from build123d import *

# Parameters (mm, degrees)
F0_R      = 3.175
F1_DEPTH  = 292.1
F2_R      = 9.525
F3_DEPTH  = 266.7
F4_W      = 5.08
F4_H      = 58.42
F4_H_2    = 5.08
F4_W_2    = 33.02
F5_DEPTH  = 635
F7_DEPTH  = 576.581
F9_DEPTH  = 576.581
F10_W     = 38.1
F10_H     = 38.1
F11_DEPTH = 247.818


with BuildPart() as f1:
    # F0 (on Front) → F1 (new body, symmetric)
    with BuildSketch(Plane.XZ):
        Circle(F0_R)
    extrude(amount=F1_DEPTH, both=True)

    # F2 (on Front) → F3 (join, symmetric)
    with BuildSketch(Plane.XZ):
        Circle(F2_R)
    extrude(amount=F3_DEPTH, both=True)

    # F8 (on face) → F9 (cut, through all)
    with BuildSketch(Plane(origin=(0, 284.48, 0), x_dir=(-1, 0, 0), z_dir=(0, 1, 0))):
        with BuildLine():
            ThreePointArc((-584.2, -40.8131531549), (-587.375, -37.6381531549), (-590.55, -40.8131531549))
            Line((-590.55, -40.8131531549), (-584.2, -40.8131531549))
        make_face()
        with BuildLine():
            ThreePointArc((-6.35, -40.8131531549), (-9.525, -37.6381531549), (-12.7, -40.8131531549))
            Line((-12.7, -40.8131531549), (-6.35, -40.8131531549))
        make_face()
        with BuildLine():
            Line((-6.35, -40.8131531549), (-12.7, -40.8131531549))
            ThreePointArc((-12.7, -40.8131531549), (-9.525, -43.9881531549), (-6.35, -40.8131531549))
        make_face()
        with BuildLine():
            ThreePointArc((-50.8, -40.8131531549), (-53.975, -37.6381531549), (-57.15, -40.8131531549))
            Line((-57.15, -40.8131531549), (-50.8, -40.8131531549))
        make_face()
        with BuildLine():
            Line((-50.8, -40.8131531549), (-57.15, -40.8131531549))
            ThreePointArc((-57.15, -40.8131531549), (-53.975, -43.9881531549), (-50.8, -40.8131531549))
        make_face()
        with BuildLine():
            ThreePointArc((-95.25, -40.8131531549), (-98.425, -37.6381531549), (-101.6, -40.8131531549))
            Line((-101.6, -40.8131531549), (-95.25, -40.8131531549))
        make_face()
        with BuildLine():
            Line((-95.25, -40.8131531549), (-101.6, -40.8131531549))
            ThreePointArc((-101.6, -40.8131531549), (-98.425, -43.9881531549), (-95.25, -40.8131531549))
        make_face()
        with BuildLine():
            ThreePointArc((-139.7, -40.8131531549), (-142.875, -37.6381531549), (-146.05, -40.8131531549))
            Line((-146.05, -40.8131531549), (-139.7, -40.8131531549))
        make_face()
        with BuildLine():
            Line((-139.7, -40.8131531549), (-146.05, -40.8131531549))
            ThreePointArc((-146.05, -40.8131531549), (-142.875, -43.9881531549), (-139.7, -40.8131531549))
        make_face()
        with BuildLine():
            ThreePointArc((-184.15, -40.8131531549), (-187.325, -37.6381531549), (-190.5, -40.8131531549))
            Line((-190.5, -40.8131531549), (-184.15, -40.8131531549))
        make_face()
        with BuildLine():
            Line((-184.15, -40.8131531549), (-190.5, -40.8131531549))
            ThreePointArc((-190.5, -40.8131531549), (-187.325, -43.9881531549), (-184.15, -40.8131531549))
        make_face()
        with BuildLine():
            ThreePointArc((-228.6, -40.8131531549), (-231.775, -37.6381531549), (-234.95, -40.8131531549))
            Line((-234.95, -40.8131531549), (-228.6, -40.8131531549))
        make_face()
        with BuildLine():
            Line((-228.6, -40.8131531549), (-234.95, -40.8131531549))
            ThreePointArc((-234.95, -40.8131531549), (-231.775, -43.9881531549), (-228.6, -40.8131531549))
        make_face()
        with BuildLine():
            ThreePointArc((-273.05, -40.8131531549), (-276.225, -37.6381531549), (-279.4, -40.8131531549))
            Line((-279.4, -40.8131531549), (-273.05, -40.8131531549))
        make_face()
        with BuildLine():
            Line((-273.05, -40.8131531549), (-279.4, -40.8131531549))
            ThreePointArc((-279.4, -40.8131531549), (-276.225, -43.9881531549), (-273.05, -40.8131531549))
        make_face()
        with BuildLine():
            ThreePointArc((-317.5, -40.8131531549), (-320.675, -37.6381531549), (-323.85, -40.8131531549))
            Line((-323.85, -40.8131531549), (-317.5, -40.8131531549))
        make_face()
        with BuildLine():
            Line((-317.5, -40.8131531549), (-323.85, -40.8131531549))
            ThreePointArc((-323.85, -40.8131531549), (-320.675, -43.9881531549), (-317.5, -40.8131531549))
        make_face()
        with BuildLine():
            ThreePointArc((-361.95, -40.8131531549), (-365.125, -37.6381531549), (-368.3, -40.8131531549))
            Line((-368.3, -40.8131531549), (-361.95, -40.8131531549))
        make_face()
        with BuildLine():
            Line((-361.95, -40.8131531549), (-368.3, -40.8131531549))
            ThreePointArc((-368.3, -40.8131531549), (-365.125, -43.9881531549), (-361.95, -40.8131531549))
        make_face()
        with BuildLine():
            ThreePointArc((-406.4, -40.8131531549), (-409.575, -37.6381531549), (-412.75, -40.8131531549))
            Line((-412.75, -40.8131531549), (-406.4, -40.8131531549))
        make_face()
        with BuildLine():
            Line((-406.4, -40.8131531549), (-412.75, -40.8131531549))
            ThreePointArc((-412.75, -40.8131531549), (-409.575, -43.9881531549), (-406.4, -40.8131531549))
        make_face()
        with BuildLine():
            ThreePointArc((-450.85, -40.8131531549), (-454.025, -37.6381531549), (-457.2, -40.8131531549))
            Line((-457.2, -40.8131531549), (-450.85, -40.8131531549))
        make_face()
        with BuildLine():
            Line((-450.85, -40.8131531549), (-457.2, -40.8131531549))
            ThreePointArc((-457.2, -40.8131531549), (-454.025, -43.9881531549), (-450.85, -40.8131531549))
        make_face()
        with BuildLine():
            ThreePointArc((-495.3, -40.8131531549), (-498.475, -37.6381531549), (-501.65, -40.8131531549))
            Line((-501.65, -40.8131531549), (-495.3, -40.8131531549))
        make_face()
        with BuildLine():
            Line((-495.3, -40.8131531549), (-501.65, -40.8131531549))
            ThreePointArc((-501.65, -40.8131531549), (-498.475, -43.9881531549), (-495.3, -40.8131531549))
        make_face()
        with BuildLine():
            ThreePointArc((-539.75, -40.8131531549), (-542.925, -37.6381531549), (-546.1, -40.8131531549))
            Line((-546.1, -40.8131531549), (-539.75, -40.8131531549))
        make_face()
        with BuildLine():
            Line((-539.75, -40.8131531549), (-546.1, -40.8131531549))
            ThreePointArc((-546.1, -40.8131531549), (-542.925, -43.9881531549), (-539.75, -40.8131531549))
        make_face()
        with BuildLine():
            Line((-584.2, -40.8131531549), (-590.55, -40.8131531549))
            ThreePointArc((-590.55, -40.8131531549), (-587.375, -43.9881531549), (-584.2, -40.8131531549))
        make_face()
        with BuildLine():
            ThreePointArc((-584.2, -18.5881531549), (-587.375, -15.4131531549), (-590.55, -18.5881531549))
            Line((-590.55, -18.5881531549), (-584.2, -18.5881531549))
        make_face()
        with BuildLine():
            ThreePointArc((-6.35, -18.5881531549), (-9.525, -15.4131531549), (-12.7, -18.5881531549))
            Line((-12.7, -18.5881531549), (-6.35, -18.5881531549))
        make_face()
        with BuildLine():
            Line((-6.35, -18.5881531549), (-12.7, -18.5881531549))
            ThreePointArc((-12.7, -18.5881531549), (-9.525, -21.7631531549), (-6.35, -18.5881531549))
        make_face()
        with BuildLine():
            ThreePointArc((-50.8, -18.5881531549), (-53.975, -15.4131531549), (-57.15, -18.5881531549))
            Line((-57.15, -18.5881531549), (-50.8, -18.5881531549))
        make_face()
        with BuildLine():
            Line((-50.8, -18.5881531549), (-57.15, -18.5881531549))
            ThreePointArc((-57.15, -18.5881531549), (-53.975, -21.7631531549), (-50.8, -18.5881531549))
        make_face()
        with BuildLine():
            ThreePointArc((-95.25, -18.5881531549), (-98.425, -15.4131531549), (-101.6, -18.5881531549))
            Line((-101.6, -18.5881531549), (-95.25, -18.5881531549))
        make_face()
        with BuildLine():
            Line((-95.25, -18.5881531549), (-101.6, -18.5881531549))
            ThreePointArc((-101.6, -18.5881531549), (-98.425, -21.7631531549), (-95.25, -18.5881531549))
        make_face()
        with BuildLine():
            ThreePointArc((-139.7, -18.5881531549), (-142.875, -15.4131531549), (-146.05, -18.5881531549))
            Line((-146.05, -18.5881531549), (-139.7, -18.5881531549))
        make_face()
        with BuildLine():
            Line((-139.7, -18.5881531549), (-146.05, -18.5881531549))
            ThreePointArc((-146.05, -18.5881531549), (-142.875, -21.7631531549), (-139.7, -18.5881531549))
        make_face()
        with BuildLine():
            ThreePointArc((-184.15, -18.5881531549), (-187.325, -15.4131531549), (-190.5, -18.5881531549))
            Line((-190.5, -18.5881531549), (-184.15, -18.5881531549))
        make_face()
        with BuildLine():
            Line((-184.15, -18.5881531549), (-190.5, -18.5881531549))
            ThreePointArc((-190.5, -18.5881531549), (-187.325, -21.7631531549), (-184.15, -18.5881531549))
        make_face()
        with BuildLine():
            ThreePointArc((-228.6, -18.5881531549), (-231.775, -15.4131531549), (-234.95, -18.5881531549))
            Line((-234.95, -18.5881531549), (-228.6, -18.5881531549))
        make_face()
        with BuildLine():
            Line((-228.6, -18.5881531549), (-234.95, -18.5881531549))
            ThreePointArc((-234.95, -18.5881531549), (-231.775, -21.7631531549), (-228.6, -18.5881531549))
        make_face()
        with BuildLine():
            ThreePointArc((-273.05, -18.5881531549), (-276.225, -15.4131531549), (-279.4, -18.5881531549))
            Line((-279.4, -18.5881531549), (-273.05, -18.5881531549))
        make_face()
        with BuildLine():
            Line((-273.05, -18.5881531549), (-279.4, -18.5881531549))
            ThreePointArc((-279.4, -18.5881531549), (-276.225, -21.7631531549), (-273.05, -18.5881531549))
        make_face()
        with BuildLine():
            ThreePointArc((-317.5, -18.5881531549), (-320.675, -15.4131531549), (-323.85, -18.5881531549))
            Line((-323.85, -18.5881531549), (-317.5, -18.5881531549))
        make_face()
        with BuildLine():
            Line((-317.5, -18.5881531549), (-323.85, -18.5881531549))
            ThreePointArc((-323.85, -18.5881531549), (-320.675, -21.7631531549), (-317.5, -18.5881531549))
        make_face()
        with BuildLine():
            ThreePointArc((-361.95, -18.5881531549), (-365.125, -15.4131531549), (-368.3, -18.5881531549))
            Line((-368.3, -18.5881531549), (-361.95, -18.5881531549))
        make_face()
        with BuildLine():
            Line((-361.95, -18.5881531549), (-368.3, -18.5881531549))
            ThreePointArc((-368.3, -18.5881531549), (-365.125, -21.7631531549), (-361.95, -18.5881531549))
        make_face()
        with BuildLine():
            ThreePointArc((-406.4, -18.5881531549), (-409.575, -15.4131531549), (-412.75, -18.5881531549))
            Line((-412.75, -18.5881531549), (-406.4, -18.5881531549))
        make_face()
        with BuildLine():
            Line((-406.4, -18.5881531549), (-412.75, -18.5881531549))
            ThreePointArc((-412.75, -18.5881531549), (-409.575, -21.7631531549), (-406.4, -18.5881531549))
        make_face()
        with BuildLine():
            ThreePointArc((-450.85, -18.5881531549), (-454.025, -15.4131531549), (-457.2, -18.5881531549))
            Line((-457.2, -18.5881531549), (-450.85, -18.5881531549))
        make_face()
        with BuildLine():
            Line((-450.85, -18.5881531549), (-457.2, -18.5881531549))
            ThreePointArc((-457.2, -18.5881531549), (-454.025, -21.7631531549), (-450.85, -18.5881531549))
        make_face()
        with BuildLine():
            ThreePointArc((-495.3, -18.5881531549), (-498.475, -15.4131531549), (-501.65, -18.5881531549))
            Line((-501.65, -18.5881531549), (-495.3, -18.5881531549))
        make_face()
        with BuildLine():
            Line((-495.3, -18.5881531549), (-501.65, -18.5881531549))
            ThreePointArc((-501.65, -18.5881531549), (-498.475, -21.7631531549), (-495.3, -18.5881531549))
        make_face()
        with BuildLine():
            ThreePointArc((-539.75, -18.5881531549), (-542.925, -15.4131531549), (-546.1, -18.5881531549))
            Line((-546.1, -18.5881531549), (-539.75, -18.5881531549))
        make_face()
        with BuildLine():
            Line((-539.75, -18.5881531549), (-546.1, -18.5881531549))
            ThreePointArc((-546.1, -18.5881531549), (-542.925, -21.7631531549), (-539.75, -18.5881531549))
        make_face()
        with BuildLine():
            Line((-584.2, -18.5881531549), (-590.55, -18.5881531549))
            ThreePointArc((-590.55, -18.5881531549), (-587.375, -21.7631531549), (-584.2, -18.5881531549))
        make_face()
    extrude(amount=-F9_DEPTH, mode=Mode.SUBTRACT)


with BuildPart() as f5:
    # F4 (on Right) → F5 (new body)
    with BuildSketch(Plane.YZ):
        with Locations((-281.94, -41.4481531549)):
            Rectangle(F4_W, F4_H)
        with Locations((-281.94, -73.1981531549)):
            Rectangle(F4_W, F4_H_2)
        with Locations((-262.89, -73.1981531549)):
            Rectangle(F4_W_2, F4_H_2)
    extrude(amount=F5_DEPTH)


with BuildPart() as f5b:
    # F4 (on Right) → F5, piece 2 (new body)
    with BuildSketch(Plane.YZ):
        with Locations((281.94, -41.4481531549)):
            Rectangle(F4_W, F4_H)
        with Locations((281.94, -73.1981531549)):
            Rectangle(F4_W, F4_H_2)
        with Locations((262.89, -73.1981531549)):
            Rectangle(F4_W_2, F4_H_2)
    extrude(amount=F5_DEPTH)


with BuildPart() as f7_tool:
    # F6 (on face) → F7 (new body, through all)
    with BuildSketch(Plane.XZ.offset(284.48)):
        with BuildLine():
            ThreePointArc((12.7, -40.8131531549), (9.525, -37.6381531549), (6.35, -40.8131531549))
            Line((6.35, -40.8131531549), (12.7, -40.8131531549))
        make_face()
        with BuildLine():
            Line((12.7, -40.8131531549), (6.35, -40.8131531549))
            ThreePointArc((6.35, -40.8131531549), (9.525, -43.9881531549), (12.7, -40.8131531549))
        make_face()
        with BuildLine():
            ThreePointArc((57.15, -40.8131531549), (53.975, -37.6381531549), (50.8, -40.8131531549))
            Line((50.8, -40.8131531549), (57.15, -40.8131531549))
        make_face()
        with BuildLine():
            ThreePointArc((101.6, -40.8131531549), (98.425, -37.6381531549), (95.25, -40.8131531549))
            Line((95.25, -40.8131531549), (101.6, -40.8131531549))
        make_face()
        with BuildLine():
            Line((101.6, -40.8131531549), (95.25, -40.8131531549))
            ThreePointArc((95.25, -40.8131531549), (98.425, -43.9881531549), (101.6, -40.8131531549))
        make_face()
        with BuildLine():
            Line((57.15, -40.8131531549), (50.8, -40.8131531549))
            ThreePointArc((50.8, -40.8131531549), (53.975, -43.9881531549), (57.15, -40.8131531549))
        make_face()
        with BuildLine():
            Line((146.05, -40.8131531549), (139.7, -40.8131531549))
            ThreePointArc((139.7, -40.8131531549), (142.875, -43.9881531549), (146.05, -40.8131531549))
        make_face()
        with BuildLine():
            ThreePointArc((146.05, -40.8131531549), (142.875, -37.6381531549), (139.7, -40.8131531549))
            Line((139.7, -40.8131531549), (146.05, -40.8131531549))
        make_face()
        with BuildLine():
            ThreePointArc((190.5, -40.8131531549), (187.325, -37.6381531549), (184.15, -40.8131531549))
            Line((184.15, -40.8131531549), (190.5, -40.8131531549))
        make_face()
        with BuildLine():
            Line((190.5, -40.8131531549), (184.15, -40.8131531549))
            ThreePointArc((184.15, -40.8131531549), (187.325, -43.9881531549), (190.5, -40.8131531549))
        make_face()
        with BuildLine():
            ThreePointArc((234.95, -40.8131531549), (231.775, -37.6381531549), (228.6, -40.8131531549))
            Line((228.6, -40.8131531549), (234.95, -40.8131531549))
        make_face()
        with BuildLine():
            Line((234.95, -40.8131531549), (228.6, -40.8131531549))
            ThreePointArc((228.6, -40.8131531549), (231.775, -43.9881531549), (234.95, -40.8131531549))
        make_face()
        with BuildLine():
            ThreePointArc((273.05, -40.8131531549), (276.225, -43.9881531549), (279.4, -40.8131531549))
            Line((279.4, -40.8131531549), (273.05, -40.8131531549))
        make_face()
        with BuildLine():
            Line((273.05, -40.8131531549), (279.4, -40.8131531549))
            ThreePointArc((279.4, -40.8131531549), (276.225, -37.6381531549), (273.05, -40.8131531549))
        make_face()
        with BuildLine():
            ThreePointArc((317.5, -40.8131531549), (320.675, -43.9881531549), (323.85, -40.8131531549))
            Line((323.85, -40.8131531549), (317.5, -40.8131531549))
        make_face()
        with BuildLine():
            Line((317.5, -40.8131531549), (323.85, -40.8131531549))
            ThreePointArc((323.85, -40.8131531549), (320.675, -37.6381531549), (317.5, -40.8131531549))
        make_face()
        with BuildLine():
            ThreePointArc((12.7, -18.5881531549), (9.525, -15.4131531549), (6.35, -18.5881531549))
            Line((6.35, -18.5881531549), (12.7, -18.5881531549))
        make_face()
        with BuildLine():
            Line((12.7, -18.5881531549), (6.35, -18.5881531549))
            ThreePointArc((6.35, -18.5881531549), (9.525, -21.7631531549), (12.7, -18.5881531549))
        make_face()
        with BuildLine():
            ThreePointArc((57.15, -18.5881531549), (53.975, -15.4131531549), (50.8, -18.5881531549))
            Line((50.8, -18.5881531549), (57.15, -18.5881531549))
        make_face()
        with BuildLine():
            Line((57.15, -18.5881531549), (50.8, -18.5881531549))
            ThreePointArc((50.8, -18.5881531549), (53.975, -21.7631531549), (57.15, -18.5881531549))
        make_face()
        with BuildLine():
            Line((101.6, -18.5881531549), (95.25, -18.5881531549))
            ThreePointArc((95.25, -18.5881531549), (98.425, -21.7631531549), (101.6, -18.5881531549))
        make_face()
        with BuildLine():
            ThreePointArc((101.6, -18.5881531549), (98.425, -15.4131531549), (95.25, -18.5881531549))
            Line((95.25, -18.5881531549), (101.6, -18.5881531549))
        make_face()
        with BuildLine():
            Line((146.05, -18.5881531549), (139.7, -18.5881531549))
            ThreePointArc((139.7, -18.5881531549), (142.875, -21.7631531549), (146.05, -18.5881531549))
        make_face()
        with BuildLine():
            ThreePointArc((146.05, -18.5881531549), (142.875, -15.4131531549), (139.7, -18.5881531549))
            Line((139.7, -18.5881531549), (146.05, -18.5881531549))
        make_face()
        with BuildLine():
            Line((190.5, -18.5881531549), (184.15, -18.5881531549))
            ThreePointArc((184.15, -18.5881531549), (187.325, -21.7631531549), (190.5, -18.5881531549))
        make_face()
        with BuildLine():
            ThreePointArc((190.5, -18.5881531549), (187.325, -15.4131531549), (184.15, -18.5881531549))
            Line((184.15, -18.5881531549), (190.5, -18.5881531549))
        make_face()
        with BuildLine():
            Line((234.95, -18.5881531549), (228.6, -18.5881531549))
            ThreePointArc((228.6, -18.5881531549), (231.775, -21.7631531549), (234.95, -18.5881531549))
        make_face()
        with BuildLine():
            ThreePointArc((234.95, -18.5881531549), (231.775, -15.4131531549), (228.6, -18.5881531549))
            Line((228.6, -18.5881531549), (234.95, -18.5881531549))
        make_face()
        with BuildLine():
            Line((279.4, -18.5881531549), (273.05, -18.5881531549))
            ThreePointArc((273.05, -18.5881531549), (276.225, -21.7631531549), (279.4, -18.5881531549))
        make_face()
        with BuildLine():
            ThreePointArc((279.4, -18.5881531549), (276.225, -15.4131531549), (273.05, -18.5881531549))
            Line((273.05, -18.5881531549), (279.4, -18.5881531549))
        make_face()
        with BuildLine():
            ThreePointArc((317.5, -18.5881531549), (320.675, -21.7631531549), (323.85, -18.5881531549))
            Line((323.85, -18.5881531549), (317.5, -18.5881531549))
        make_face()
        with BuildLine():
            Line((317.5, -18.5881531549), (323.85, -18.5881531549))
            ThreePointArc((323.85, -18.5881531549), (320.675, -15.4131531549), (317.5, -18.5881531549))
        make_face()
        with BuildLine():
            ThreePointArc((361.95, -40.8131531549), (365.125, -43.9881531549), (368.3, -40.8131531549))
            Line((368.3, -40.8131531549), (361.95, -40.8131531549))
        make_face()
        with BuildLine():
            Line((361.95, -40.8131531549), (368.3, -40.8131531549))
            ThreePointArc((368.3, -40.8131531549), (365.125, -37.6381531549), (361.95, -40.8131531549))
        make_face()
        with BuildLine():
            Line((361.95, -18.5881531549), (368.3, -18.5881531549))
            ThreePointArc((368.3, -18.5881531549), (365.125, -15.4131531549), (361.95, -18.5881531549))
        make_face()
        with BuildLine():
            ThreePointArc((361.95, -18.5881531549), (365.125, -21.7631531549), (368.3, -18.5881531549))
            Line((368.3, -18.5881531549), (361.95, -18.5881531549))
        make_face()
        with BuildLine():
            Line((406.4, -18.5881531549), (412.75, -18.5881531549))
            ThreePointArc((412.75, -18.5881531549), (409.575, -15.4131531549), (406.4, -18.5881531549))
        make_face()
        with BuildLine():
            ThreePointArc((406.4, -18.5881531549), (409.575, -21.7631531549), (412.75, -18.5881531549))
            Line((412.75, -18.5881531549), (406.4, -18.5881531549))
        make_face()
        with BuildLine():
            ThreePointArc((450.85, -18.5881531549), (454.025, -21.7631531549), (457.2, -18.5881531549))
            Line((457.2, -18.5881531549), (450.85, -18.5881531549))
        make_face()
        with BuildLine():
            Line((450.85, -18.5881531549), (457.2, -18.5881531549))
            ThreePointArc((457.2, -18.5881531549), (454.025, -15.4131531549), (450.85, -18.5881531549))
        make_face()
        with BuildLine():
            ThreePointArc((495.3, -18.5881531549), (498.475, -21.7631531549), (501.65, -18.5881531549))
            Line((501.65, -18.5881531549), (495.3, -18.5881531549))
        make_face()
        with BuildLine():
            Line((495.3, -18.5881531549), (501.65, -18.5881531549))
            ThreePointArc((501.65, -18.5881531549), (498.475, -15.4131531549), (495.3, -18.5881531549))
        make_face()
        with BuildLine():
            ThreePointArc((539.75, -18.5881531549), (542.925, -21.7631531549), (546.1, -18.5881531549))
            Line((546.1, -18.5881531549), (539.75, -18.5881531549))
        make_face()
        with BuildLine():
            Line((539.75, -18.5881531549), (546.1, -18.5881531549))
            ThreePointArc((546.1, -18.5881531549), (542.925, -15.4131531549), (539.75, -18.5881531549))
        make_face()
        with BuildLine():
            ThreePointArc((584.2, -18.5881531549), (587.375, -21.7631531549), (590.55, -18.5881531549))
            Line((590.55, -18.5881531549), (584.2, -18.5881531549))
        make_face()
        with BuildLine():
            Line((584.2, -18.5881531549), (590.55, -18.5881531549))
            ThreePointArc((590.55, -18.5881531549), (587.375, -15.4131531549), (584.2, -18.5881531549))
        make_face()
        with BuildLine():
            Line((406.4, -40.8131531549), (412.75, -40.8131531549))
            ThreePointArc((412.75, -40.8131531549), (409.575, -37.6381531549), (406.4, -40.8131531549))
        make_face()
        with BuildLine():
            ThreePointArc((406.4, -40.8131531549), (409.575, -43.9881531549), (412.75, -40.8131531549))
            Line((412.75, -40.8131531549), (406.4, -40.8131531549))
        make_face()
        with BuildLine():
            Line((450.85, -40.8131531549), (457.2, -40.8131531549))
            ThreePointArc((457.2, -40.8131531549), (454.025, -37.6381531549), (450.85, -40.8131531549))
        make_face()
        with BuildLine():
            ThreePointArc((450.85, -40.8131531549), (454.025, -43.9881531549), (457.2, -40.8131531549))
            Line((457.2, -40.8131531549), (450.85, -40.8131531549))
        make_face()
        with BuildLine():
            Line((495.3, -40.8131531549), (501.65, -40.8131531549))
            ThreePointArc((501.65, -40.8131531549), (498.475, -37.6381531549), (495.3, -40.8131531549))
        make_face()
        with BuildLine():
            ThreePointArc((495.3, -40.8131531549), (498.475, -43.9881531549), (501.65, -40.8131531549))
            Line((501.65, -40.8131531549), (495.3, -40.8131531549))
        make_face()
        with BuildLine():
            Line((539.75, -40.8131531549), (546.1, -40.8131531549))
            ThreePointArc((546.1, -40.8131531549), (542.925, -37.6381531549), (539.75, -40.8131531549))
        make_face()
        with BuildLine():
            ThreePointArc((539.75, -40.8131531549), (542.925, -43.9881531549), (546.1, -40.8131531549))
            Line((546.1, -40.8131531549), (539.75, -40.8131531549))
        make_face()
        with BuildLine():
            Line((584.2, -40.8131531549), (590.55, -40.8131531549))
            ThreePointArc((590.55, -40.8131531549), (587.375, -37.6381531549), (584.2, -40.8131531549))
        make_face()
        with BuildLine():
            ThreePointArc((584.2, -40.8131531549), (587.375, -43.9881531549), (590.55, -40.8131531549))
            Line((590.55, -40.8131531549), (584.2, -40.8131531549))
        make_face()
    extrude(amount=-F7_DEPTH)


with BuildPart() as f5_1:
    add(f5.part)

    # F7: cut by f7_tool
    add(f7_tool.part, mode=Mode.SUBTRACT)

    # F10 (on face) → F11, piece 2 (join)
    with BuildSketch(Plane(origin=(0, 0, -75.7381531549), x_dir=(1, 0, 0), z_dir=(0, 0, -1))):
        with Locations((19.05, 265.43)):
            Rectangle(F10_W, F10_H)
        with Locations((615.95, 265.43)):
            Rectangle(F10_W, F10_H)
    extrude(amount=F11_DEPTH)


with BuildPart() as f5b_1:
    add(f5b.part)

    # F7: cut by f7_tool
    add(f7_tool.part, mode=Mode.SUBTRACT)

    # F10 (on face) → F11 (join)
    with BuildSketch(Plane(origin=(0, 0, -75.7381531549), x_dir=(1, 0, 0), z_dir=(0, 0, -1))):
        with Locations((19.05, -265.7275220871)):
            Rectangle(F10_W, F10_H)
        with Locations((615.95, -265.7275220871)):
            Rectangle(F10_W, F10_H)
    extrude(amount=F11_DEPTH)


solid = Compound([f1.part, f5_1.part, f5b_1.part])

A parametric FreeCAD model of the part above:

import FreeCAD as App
import Part
import Sketcher
Q = App.Units.Quantity

doc = App.newDocument("Part")
params = doc.addObject("Spreadsheet::Sheet", "Params")
for row, (alias, value) in enumerate([
    ("sketch1_diameter", "0.25 in"),
    ("pad1_length", "23 in"),
    ("sketch2_diameter", "0.75 in"),
    ("pad2_length", "21 in"),
    ("sketch3_diameter", "0.25 in"),
    ("sketch4_width", "1.5 in"),
    ("sketch4_width2", "1.3 in"),
    ("sketch4_height", "2.5 in"),
    ("pad3_length", "25 in"),
    ("sketch5_width", "1.3 in"),
    ("sketch5_width2", "1.5 in"),
    ("sketch5_height", "2.3 in"),
    ("pad4_length", "25 in"),
    ("sketch6_diameter", "0.25 in"),
    ("pad5_length", "576.581 mm"),
    ("sketch7_width", "1.5 in"),
    ("pad6_length", "247.818 mm"),
    ("sketch8_width", "1.5 in"),
    ("pad7_length", "247.818 mm"),
], start=1):
    params.set(f"A{row}", alias)
    params.set(f"B{row}", "=" + value)
    params.setAlias(f"B{row}", alias)

body = doc.addObject("PartDesign::Body", "Body")

# Sketch on XZ plane
sketch1 = body.newObject("Sketcher::SketchObject", "Sketch")
sketch1.AttachmentSupport = (doc.getObject("XZ_Plane"), [""])
sketch1.MapMode = "FlatFace"
sketch1.addGeometry(Part.Circle(App.Vector(0, 0, 0), App.Vector(0, 0, 1), 3.175), False)
sketch1.addConstraint(Sketcher.Constraint("Coincident", 0, 3, -1, 1))
sketch1.addConstraint(Sketcher.Constraint("Diameter", 0, Q("0.25 in")))
sketch1.setExpression("Constraints[1]", "Params.sketch1_diameter")
pad1 = body.newObject("PartDesign::Pad", "Pad")
pad1.Profile = sketch1
pad1.setExpression("Length", "Params.pad1_length")
pad1.Midplane = True

# Sketch on XZ plane
sketch2 = body.newObject("Sketcher::SketchObject", "Sketch001")
sketch2.AttachmentSupport = (doc.getObject("XZ_Plane"), [""])
sketch2.MapMode = "FlatFace"
sketch2.addGeometry(Part.Circle(App.Vector(0, 0, 0), App.Vector(0, 0, 1), 9.525), False)
sketch2.addConstraint(Sketcher.Constraint("Coincident", 0, 3, -1, 1))
sketch2.addConstraint(Sketcher.Constraint("Diameter", 0, Q("0.75 in")))
sketch2.setExpression("Constraints[1]", "Params.sketch2_diameter")
pad2 = body.newObject("PartDesign::Pad", "Pad001")
pad2.Profile = sketch2
pad2.setExpression("Length", "Params.pad2_length")
pad2.Midplane = True

# Sketch on XZ plane
sketch3 = body.newObject("Sketcher::SketchObject", "Sketch002")
sketch3.AttachmentSupport = (doc.getObject("XZ_Plane"), [""])
sketch3.MapMode = "FlatFace"
sketch3.AttachmentOffset = App.Placement(App.Vector(0, 0, -11.2 * 25.4), App.Rotation())
sketch3.addGeometry(Part.Circle(App.Vector(587.375, -40.813153, 0), App.Vector(0, 0, 1), 3.175), False)
sketch3.addGeometry(Part.Circle(App.Vector(9.525, -40.813153, 0), App.Vector(0, 0, 1), 3.175), False)
sketch3.addGeometry(Part.Circle(App.Vector(53.975, -40.813153, 0), App.Vector(0, 0, 1), 3.175), False)
sketch3.addGeometry(Part.Circle(App.Vector(98.425, -40.813153, 0), App.Vector(0, 0, 1), 3.175), False)
sketch3.addGeometry(Part.Circle(App.Vector(142.875, -40.813153, 0), App.Vector(0, 0, 1), 3.175), False)
sketch3.addGeometry(Part.Circle(App.Vector(187.325, -40.813153, 0), App.Vector(0, 0, 1), 3.175), False)
sketch3.addGeometry(Part.Circle(App.Vector(231.775, -40.813153, 0), App.Vector(0, 0, 1), 3.175), False)
sketch3.addGeometry(Part.Circle(App.Vector(276.225, -40.813153, 0), App.Vector(0, 0, 1), 3.175), False)
sketch3.addGeometry(Part.Circle(App.Vector(320.675, -40.813153, 0), App.Vector(0, 0, 1), 3.175), False)
sketch3.addGeometry(Part.Circle(App.Vector(365.125, -40.813153, 0), App.Vector(0, 0, 1), 3.175), False)
sketch3.addGeometry(Part.Circle(App.Vector(409.575, -40.813153, 0), App.Vector(0, 0, 1), 3.175), False)
sketch3.addGeometry(Part.Circle(App.Vector(454.025, -40.813153, 0), App.Vector(0, 0, 1), 3.175), False)
sketch3.addGeometry(Part.Circle(App.Vector(498.475, -40.813153, 0), App.Vector(0, 0, 1), 3.175), False)
sketch3.addGeometry(Part.Circle(App.Vector(542.925, -40.813153, 0), App.Vector(0, 0, 1), 3.175), False)
sketch3.addGeometry(Part.Circle(App.Vector(587.375, -18.588153, 0), App.Vector(0, 0, 1), 3.175), False)
sketch3.addGeometry(Part.Circle(App.Vector(9.525, -18.588153, 0), App.Vector(0, 0, 1), 3.175), False)
sketch3.addGeometry(Part.Circle(App.Vector(53.975, -18.588153, 0), App.Vector(0, 0, 1), 3.175), False)
sketch3.addGeometry(Part.Circle(App.Vector(98.425, -18.588153, 0), App.Vector(0, 0, 1), 3.175), False)
sketch3.addGeometry(Part.Circle(App.Vector(142.875, -18.588153, 0), App.Vector(0, 0, 1), 3.175), False)
sketch3.addGeometry(Part.Circle(App.Vector(187.325, -18.588153, 0), App.Vector(0, 0, 1), 3.175), False)
sketch3.addGeometry(Part.Circle(App.Vector(231.775, -18.588153, 0), App.Vector(0, 0, 1), 3.175), False)
sketch3.addGeometry(Part.Circle(App.Vector(276.225, -18.588153, 0), App.Vector(0, 0, 1), 3.175), False)
sketch3.addGeometry(Part.Circle(App.Vector(320.675, -18.588153, 0), App.Vector(0, 0, 1), 3.175), False)
sketch3.addGeometry(Part.Circle(App.Vector(365.125, -18.588153, 0), App.Vector(0, 0, 1), 3.175), False)
sketch3.addGeometry(Part.Circle(App.Vector(409.575, -18.588153, 0), App.Vector(0, 0, 1), 3.175), False)
sketch3.addGeometry(Part.Circle(App.Vector(454.025, -18.588153, 0), App.Vector(0, 0, 1), 3.175), False)
sketch3.addGeometry(Part.Circle(App.Vector(498.475, -18.588153, 0), App.Vector(0, 0, 1), 3.175), False)
sketch3.addGeometry(Part.Circle(App.Vector(542.925, -18.588153, 0), App.Vector(0, 0, 1), 3.175), False)
sketch3.addConstraint(Sketcher.Constraint("Equal", 0, 1))
sketch3.addConstraint(Sketcher.Constraint("Equal", 1, 2))
sketch3.addConstraint(Sketcher.Constraint("Equal", 2, 3))
sketch3.addConstraint(Sketcher.Constraint("Equal", 3, 4))
sketch3.addConstraint(Sketcher.Constraint("Equal", 4, 5))
sketch3.addConstraint(Sketcher.Constraint("Equal", 5, 6))
sketch3.addConstraint(Sketcher.Constraint("Equal", 6, 7))
sketch3.addConstraint(Sketcher.Constraint("Equal", 7, 8))
sketch3.addConstraint(Sketcher.Constraint("Equal", 8, 9))
sketch3.addConstraint(Sketcher.Constraint("Equal", 9, 10))
sketch3.addConstraint(Sketcher.Constraint("Equal", 10, 11))
sketch3.addConstraint(Sketcher.Constraint("Equal", 11, 12))
sketch3.addConstraint(Sketcher.Constraint("Equal", 12, 13))
sketch3.addConstraint(Sketcher.Constraint("Equal", 13, 14))
sketch3.addConstraint(Sketcher.Constraint("Equal", 14, 15))
sketch3.addConstraint(Sketcher.Constraint("Equal", 15, 16))
sketch3.addConstraint(Sketcher.Constraint("Equal", 16, 17))
sketch3.addConstraint(Sketcher.Constraint("Equal", 17, 18))
sketch3.addConstraint(Sketcher.Constraint("Equal", 18, 19))
sketch3.addConstraint(Sketcher.Constraint("Equal", 19, 20))
sketch3.addConstraint(Sketcher.Constraint("Equal", 20, 21))
sketch3.addConstraint(Sketcher.Constraint("Equal", 21, 22))
sketch3.addConstraint(Sketcher.Constraint("Equal", 22, 23))
sketch3.addConstraint(Sketcher.Constraint("Equal", 23, 24))
sketch3.addConstraint(Sketcher.Constraint("Equal", 24, 25))
sketch3.addConstraint(Sketcher.Constraint("Equal", 25, 26))
sketch3.addConstraint(Sketcher.Constraint("Equal", 26, 27))
sketch3.addConstraint(Sketcher.Constraint("Horizontal", 0, 3, 1, 3))
sketch3.addConstraint(Sketcher.Constraint("Horizontal", 1, 3, 2, 3))
sketch3.addConstraint(Sketcher.Constraint("Horizontal", 2, 3, 3, 3))
sketch3.addConstraint(Sketcher.Constraint("Horizontal", 3, 3, 4, 3))
sketch3.addConstraint(Sketcher.Constraint("Horizontal", 4, 3, 5, 3))
sketch3.addConstraint(Sketcher.Constraint("Horizontal", 5, 3, 6, 3))
sketch3.addConstraint(Sketcher.Constraint("Horizontal", 6, 3, 7, 3))
sketch3.addConstraint(Sketcher.Constraint("Horizontal", 7, 3, 8, 3))
sketch3.addConstraint(Sketcher.Constraint("Horizontal", 8, 3, 9, 3))
sketch3.addConstraint(Sketcher.Constraint("Horizontal", 9, 3, 10, 3))
sketch3.addConstraint(Sketcher.Constraint("Horizontal", 10, 3, 11, 3))
sketch3.addConstraint(Sketcher.Constraint("Horizontal", 11, 3, 12, 3))
sketch3.addConstraint(Sketcher.Constraint("Horizontal", 12, 3, 13, 3))
sketch3.addConstraint(Sketcher.Constraint("Horizontal", 14, 3, 15, 3))
sketch3.addConstraint(Sketcher.Constraint("Horizontal", 15, 3, 16, 3))
sketch3.addConstraint(Sketcher.Constraint("Horizontal", 16, 3, 17, 3))
sketch3.addConstraint(Sketcher.Constraint("Horizontal", 17, 3, 18, 3))
sketch3.addConstraint(Sketcher.Constraint("Horizontal", 18, 3, 19, 3))
sketch3.addConstraint(Sketcher.Constraint("Horizontal", 19, 3, 20, 3))
sketch3.addConstraint(Sketcher.Constraint("Horizontal", 20, 3, 21, 3))
sketch3.addConstraint(Sketcher.Constraint("Horizontal", 21, 3, 22, 3))
sketch3.addConstraint(Sketcher.Constraint("Horizontal", 22, 3, 23, 3))
sketch3.addConstraint(Sketcher.Constraint("Horizontal", 23, 3, 24, 3))
sketch3.addConstraint(Sketcher.Constraint("Horizontal", 24, 3, 25, 3))
sketch3.addConstraint(Sketcher.Constraint("Horizontal", 25, 3, 26, 3))
sketch3.addConstraint(Sketcher.Constraint("Horizontal", 26, 3, 27, 3))
sketch3.addConstraint(Sketcher.Constraint("Vertical", 0, 3, 14, 3))
sketch3.addConstraint(Sketcher.Constraint("Vertical", 1, 3, 15, 3))
sketch3.addConstraint(Sketcher.Constraint("Vertical", 2, 3, 16, 3))
sketch3.addConstraint(Sketcher.Constraint("Vertical", 3, 3, 17, 3))
sketch3.addConstraint(Sketcher.Constraint("Vertical", 4, 3, 18, 3))
sketch3.addConstraint(Sketcher.Constraint("Vertical", 5, 3, 19, 3))
sketch3.addConstraint(Sketcher.Constraint("Vertical", 6, 3, 20, 3))
sketch3.addConstraint(Sketcher.Constraint("Vertical", 7, 3, 21, 3))
sketch3.addConstraint(Sketcher.Constraint("Vertical", 8, 3, 22, 3))
sketch3.addConstraint(Sketcher.Constraint("Vertical", 9, 3, 23, 3))
sketch3.addConstraint(Sketcher.Constraint("Vertical", 10, 3, 24, 3))
sketch3.addConstraint(Sketcher.Constraint("Vertical", 11, 3, 25, 3))
sketch3.addConstraint(Sketcher.Constraint("Vertical", 12, 3, 26, 3))
sketch3.addConstraint(Sketcher.Constraint("Vertical", 13, 3, 27, 3))
sketch3.addConstraint(Sketcher.Constraint("Diameter", 0, Q("0.25 in")))
sketch3.addConstraint(Sketcher.Constraint("DistanceX", 2, 3, 0, 3, Q("21 in")))
sketch3.addConstraint(Sketcher.Constraint("DistanceX", 1, 3, 5, 3, Q("7 in")))
sketch3.addConstraint(Sketcher.Constraint("DistanceX", 2, 3, 6, 3, Q("7 in")))
sketch3.addConstraint(Sketcher.Constraint("DistanceX", 3, 3, 7, 3, Q("7 in")))
sketch3.addConstraint(Sketcher.Constraint("DistanceX", 4, 3, 8, 3, Q("7 in")))
sketch3.addConstraint(Sketcher.Constraint("DistanceX", 5, 3, 9, 3, Q("7 in")))
sketch3.addConstraint(Sketcher.Constraint("DistanceX", 6, 3, 10, 3, Q("7 in")))
sketch3.addConstraint(Sketcher.Constraint("DistanceX", 7, 3, 11, 3, Q("7 in")))
sketch3.addConstraint(Sketcher.Constraint("DistanceX", 8, 3, 12, 3, Q("7 in")))
sketch3.addConstraint(Sketcher.Constraint("DistanceX", 9, 3, 13, 3, Q("7 in")))
sketch3.addConstraint(Sketcher.Constraint("DistanceX", 1, 3, 3, 3, Q("3.5 in")))
sketch3.addConstraint(Sketcher.Constraint("DistanceX", 2, 3, 4, 3, Q("3.5 in")))
sketch3.addConstraint(Sketcher.Constraint("DistanceX", 1, 3, 0, 3, Q("22.75 in")))
sketch3.addConstraint(Sketcher.Constraint("DistanceX", -1, 1, 0, 3, Q("23.125 in")))
sketch3.addConstraint(Sketcher.Constraint("DistanceY", 0, 3, 14, 3, Q("0.875 in")))
sketch3.addConstraint(Sketcher.Constraint("DistanceY", 0, 3, -1, 1, Q("40.813153 mm")))
sketch3.setExpression("Constraints[67]", "Params.sketch3_diameter")
pocket1 = body.newObject("PartDesign::Pocket", "Pocket")
pocket1.Profile = sketch3
pocket1.Type = "ThroughAll"
pocket1.Reversed = True
body2 = doc.addObject("PartDesign::Body", "Body001")

# Sketch on YZ plane
sketch4 = body2.newObject("Sketcher::SketchObject", "Sketch003")
sketch4.AttachmentSupport = (doc.getObject("YZ_Plane001"), [""])
sketch4.MapMode = "FlatFace"
sketch4.addGeometry(Part.LineSegment(App.Vector(-284.48, -12.238153, 0), App.Vector(-284.48, -75.738153, 0)), False)
sketch4.addGeometry(Part.LineSegment(App.Vector(-284.48, -75.738153, 0), App.Vector(-246.38, -75.738153, 0)), False)
sketch4.addGeometry(Part.LineSegment(App.Vector(-246.38, -75.738153, 0), App.Vector(-246.38, -70.658153, 0)), False)
sketch4.addGeometry(Part.LineSegment(App.Vector(-246.38, -70.658153, 0), App.Vector(-279.4, -70.658153, 0)), False)
sketch4.addGeometry(Part.LineSegment(App.Vector(-279.4, -70.658153, 0), App.Vector(-279.4, -12.238153, 0)), False)
sketch4.addGeometry(Part.LineSegment(App.Vector(-279.4, -12.238153, 0), App.Vector(-284.48, -12.238153, 0)), False)
sketch4.addConstraint(Sketcher.Constraint("Coincident", 0, 2, 1, 1))
sketch4.addConstraint(Sketcher.Constraint("Coincident", 1, 2, 2, 1))
sketch4.addConstraint(Sketcher.Constraint("Coincident", 2, 2, 3, 1))
sketch4.addConstraint(Sketcher.Constraint("Coincident", 3, 2, 4, 1))
sketch4.addConstraint(Sketcher.Constraint("Coincident", 4, 2, 5, 1))
sketch4.addConstraint(Sketcher.Constraint("Coincident", 5, 2, 0, 1))
sketch4.addConstraint(Sketcher.Constraint("Vertical", 0))
sketch4.addConstraint(Sketcher.Constraint("Horizontal", 1))
sketch4.addConstraint(Sketcher.Constraint("Vertical", 2))
sketch4.addConstraint(Sketcher.Constraint("Horizontal", 3))
sketch4.addConstraint(Sketcher.Constraint("Vertical", 4))
sketch4.addConstraint(Sketcher.Constraint("Horizontal", 5))
sketch4.addConstraint(Sketcher.Constraint("Equal", 5, 2))
sketch4.addConstraint(Sketcher.Constraint("DistanceX", 1, 1, 1, 2, Q("1.5 in")))
sketch4.addConstraint(Sketcher.Constraint("DistanceX", 3, 2, 3, 1, Q("1.3 in")))
sketch4.addConstraint(Sketcher.Constraint("DistanceY", 0, 2, 0, 1, Q("2.5 in")))
sketch4.addConstraint(Sketcher.Constraint("DistanceX", 3, 2, -1, 1, Q("11 in")))
sketch4.addConstraint(Sketcher.Constraint("DistanceY", 0, 2, -1, 1, Q("75.738153 mm")))
sketch4.setExpression("Constraints[13]", "Params.sketch4_width")
sketch4.setExpression("Constraints[14]", "Params.sketch4_width2")
sketch4.setExpression("Constraints[15]", "Params.sketch4_height")
pad3 = body2.newObject("PartDesign::Pad", "Pad002")
pad3.Profile = sketch4
pad3.setExpression("Length", "Params.pad3_length")
body3 = doc.addObject("PartDesign::Body", "Body002")

# Sketch on YZ plane
sketch5 = body3.newObject("Sketcher::SketchObject", "Sketch004")
sketch5.AttachmentSupport = (doc.getObject("YZ_Plane002"), [""])
sketch5.MapMode = "FlatFace"
sketch5.addGeometry(Part.LineSegment(App.Vector(279.4, -12.238153, 0), App.Vector(279.4, -70.658153, 0)), False)
sketch5.addGeometry(Part.LineSegment(App.Vector(279.4, -70.658153, 0), App.Vector(246.38, -70.658153, 0)), False)
sketch5.addGeometry(Part.LineSegment(App.Vector(246.38, -70.658153, 0), App.Vector(246.38, -75.738153, 0)), False)
sketch5.addGeometry(Part.LineSegment(App.Vector(246.38, -75.738153, 0), App.Vector(284.48, -75.738153, 0)), False)
sketch5.addGeometry(Part.LineSegment(App.Vector(284.48, -75.738153, 0), App.Vector(284.48, -12.238153, 0)), False)
sketch5.addGeometry(Part.LineSegment(App.Vector(284.48, -12.238153, 0), App.Vector(279.4, -12.238153, 0)), False)
sketch5.addConstraint(Sketcher.Constraint("Coincident", 0, 2, 1, 1))
sketch5.addConstraint(Sketcher.Constraint("Coincident", 1, 2, 2, 1))
sketch5.addConstraint(Sketcher.Constraint("Coincident", 2, 2, 3, 1))
sketch5.addConstraint(Sketcher.Constraint("Coincident", 3, 2, 4, 1))
sketch5.addConstraint(Sketcher.Constraint("Coincident", 4, 2, 5, 1))
sketch5.addConstraint(Sketcher.Constraint("Coincident", 5, 2, 0, 1))
sketch5.addConstraint(Sketcher.Constraint("Vertical", 0))
sketch5.addConstraint(Sketcher.Constraint("Horizontal", 1))
sketch5.addConstraint(Sketcher.Constraint("Vertical", 2))
sketch5.addConstraint(Sketcher.Constraint("Horizontal", 3))
sketch5.addConstraint(Sketcher.Constraint("Vertical", 4))
sketch5.addConstraint(Sketcher.Constraint("Horizontal", 5))
sketch5.addConstraint(Sketcher.Constraint("Equal", 5, 2))
sketch5.addConstraint(Sketcher.Constraint("DistanceX", 1, 2, 1, 1, Q("1.3 in")))
sketch5.addConstraint(Sketcher.Constraint("DistanceX", 3, 1, 3, 2, Q("1.5 in")))
sketch5.addConstraint(Sketcher.Constraint("DistanceY", 0, 2, 0, 1, Q("2.3 in")))
sketch5.addConstraint(Sketcher.Constraint("DistanceX", -1, 1, 0, 2, Q("11 in")))
sketch5.addConstraint(Sketcher.Constraint("DistanceY", 0, 2, -1, 1, Q("70.658153 mm")))
sketch5.setExpression("Constraints[13]", "Params.sketch5_width")
sketch5.setExpression("Constraints[14]", "Params.sketch5_width2")
sketch5.setExpression("Constraints[15]", "Params.sketch5_height")
pad4 = body3.newObject("PartDesign::Pad", "Pad003")
pad4.Profile = sketch5
pad4.setExpression("Length", "Params.pad4_length")
body4 = doc.addObject("PartDesign::Body", "Body003")
body4.AllowCompound = True

# Sketch on XZ plane
sketch6 = body4.newObject("Sketcher::SketchObject", "Sketch005")
sketch6.AttachmentSupport = (doc.getObject("XZ_Plane003"), [""])
sketch6.MapMode = "FlatFace"
sketch6.AttachmentOffset = App.Placement(App.Vector(0, 0, 11.2 * 25.4), App.Rotation())
sketch6.addGeometry(Part.Circle(App.Vector(9.525, -40.813153, 0), App.Vector(0, 0, 1), 3.175), False)
sketch6.addGeometry(Part.Circle(App.Vector(53.975, -40.813153, 0), App.Vector(0, 0, 1), 3.175), False)
sketch6.addGeometry(Part.Circle(App.Vector(98.425, -40.813153, 0), App.Vector(0, 0, 1), 3.175), False)
sketch6.addGeometry(Part.Circle(App.Vector(142.875, -40.813153, 0), App.Vector(0, 0, 1), 3.175), False)
sketch6.addGeometry(Part.Circle(App.Vector(187.325, -40.813153, 0), App.Vector(0, 0, 1), 3.175), False)
sketch6.addGeometry(Part.Circle(App.Vector(231.775, -40.813153, 0), App.Vector(0, 0, 1), 3.175), False)
sketch6.addGeometry(Part.Circle(App.Vector(276.225, -40.813153, 0), App.Vector(0, 0, 1), 3.175), False)
sketch6.addGeometry(Part.Circle(App.Vector(320.675, -40.813153, 0), App.Vector(0, 0, 1), 3.175), False)
sketch6.addGeometry(Part.Circle(App.Vector(9.525, -18.588153, 0), App.Vector(0, 0, 1), 3.175), False)
sketch6.addGeometry(Part.Circle(App.Vector(53.975, -18.588153, 0), App.Vector(0, 0, 1), 3.175), False)
sketch6.addGeometry(Part.Circle(App.Vector(98.425, -18.588153, 0), App.Vector(0, 0, 1), 3.175), False)
sketch6.addGeometry(Part.Circle(App.Vector(142.875, -18.588153, 0), App.Vector(0, 0, 1), 3.175), False)
sketch6.addGeometry(Part.Circle(App.Vector(187.325, -18.588153, 0), App.Vector(0, 0, 1), 3.175), False)
sketch6.addGeometry(Part.Circle(App.Vector(231.775, -18.588153, 0), App.Vector(0, 0, 1), 3.175), False)
sketch6.addGeometry(Part.Circle(App.Vector(276.225, -18.588153, 0), App.Vector(0, 0, 1), 3.175), False)
sketch6.addGeometry(Part.Circle(App.Vector(320.675, -18.588153, 0), App.Vector(0, 0, 1), 3.175), False)
sketch6.addGeometry(Part.Circle(App.Vector(365.125, -40.813153, 0), App.Vector(0, 0, 1), 3.175), False)
sketch6.addGeometry(Part.Circle(App.Vector(365.125, -18.588153, 0), App.Vector(0, 0, 1), 3.175), False)
sketch6.addGeometry(Part.Circle(App.Vector(409.575, -18.588153, 0), App.Vector(0, 0, 1), 3.175), False)
sketch6.addGeometry(Part.Circle(App.Vector(454.025, -18.588153, 0), App.Vector(0, 0, 1), 3.175), False)
sketch6.addGeometry(Part.Circle(App.Vector(498.475, -18.588153, 0), App.Vector(0, 0, 1), 3.175), False)
sketch6.addGeometry(Part.Circle(App.Vector(542.925, -18.588153, 0), App.Vector(0, 0, 1), 3.175), False)
sketch6.addGeometry(Part.Circle(App.Vector(587.375, -18.588153, 0), App.Vector(0, 0, 1), 3.175), False)
sketch6.addGeometry(Part.Circle(App.Vector(409.575, -40.813153, 0), App.Vector(0, 0, 1), 3.175), False)
sketch6.addGeometry(Part.Circle(App.Vector(454.025, -40.813153, 0), App.Vector(0, 0, 1), 3.175), False)
sketch6.addGeometry(Part.Circle(App.Vector(498.475, -40.813153, 0), App.Vector(0, 0, 1), 3.175), False)
sketch6.addGeometry(Part.Circle(App.Vector(542.925, -40.813153, 0), App.Vector(0, 0, 1), 3.175), False)
sketch6.addGeometry(Part.Circle(App.Vector(587.375, -40.813153, 0), App.Vector(0, 0, 1), 3.175), False)
sketch6.addConstraint(Sketcher.Constraint("Equal", 0, 1))
sketch6.addConstraint(Sketcher.Constraint("Equal", 1, 2))
sketch6.addConstraint(Sketcher.Constraint("Equal", 2, 3))
sketch6.addConstraint(Sketcher.Constraint("Equal", 3, 4))
sketch6.addConstraint(Sketcher.Constraint("Equal", 4, 5))
sketch6.addConstraint(Sketcher.Constraint("Equal", 5, 6))
sketch6.addConstraint(Sketcher.Constraint("Equal", 6, 7))
sketch6.addConstraint(Sketcher.Constraint("Equal", 7, 8))
sketch6.addConstraint(Sketcher.Constraint("Equal", 8, 9))
sketch6.addConstraint(Sketcher.Constraint("Equal", 9, 10))
sketch6.addConstraint(Sketcher.Constraint("Equal", 10, 11))
sketch6.addConstraint(Sketcher.Constraint("Equal", 11, 12))
sketch6.addConstraint(Sketcher.Constraint("Equal", 12, 13))
sketch6.addConstraint(Sketcher.Constraint("Equal", 13, 14))
sketch6.addConstraint(Sketcher.Constraint("Equal", 14, 15))
sketch6.addConstraint(Sketcher.Constraint("Equal", 15, 16))
sketch6.addConstraint(Sketcher.Constraint("Equal", 16, 17))
sketch6.addConstraint(Sketcher.Constraint("Equal", 17, 18))
sketch6.addConstraint(Sketcher.Constraint("Equal", 18, 19))
sketch6.addConstraint(Sketcher.Constraint("Equal", 19, 20))
sketch6.addConstraint(Sketcher.Constraint("Equal", 20, 21))
sketch6.addConstraint(Sketcher.Constraint("Equal", 21, 22))
sketch6.addConstraint(Sketcher.Constraint("Equal", 22, 23))
sketch6.addConstraint(Sketcher.Constraint("Equal", 23, 24))
sketch6.addConstraint(Sketcher.Constraint("Equal", 24, 25))
sketch6.addConstraint(Sketcher.Constraint("Equal", 25, 26))
sketch6.addConstraint(Sketcher.Constraint("Equal", 26, 27))
sketch6.addConstraint(Sketcher.Constraint("Horizontal", 0, 3, 1, 3))
sketch6.addConstraint(Sketcher.Constraint("Horizontal", 1, 3, 2, 3))
sketch6.addConstraint(Sketcher.Constraint("Horizontal", 2, 3, 3, 3))
sketch6.addConstraint(Sketcher.Constraint("Horizontal", 3, 3, 4, 3))
sketch6.addConstraint(Sketcher.Constraint("Horizontal", 4, 3, 5, 3))
sketch6.addConstraint(Sketcher.Constraint("Horizontal", 5, 3, 6, 3))
sketch6.addConstraint(Sketcher.Constraint("Horizontal", 6, 3, 7, 3))
sketch6.addConstraint(Sketcher.Constraint("Horizontal", 8, 3, 9, 3))
sketch6.addConstraint(Sketcher.Constraint("Horizontal", 9, 3, 10, 3))
sketch6.addConstraint(Sketcher.Constraint("Horizontal", 10, 3, 11, 3))
sketch6.addConstraint(Sketcher.Constraint("Horizontal", 11, 3, 12, 3))
sketch6.addConstraint(Sketcher.Constraint("Horizontal", 12, 3, 13, 3))
sketch6.addConstraint(Sketcher.Constraint("Horizontal", 13, 3, 14, 3))
sketch6.addConstraint(Sketcher.Constraint("Horizontal", 14, 3, 15, 3))
sketch6.addConstraint(Sketcher.Constraint("Horizontal", 7, 3, 16, 3))
sketch6.addConstraint(Sketcher.Constraint("Horizontal", 15, 3, 17, 3))
sketch6.addConstraint(Sketcher.Constraint("Horizontal", 17, 3, 18, 3))
sketch6.addConstraint(Sketcher.Constraint("Horizontal", 18, 3, 19, 3))
sketch6.addConstraint(Sketcher.Constraint("Horizontal", 19, 3, 20, 3))
sketch6.addConstraint(Sketcher.Constraint("Horizontal", 20, 3, 21, 3))
sketch6.addConstraint(Sketcher.Constraint("Horizontal", 21, 3, 22, 3))
sketch6.addConstraint(Sketcher.Constraint("Horizontal", 16, 3, 23, 3))
sketch6.addConstraint(Sketcher.Constraint("Horizontal", 23, 3, 24, 3))
sketch6.addConstraint(Sketcher.Constraint("Horizontal", 24, 3, 25, 3))
sketch6.addConstraint(Sketcher.Constraint("Horizontal", 25, 3, 26, 3))
sketch6.addConstraint(Sketcher.Constraint("Horizontal", 26, 3, 27, 3))
sketch6.addConstraint(Sketcher.Constraint("Vertical", 0, 3, 8, 3))
sketch6.addConstraint(Sketcher.Constraint("Vertical", 1, 3, 9, 3))
sketch6.addConstraint(Sketcher.Constraint("Vertical", 2, 3, 10, 3))
sketch6.addConstraint(Sketcher.Constraint("Vertical", 3, 3, 11, 3))
sketch6.addConstraint(Sketcher.Constraint("Vertical", 4, 3, 12, 3))
sketch6.addConstraint(Sketcher.Constraint("Vertical", 5, 3, 13, 3))
sketch6.addConstraint(Sketcher.Constraint("Vertical", 6, 3, 14, 3))
sketch6.addConstraint(Sketcher.Constraint("Vertical", 7, 3, 15, 3))
sketch6.addConstraint(Sketcher.Constraint("Vertical", 16, 3, 17, 3))
sketch6.addConstraint(Sketcher.Constraint("Vertical", 18, 3, 23, 3))
sketch6.addConstraint(Sketcher.Constraint("Vertical", 19, 3, 24, 3))
sketch6.addConstraint(Sketcher.Constraint("Vertical", 20, 3, 25, 3))
sketch6.addConstraint(Sketcher.Constraint("Vertical", 21, 3, 26, 3))
sketch6.addConstraint(Sketcher.Constraint("Vertical", 22, 3, 27, 3))
sketch6.addConstraint(Sketcher.Constraint("Diameter", 0, Q("0.25 in")))
sketch6.addConstraint(Sketcher.Constraint("DistanceX", 0, 3, 4, 3, Q("7 in")))
sketch6.addConstraint(Sketcher.Constraint("DistanceX", 1, 3, 5, 3, Q("7 in")))
sketch6.addConstraint(Sketcher.Constraint("DistanceX", 2, 3, 6, 3, Q("7 in")))
sketch6.addConstraint(Sketcher.Constraint("DistanceX", 3, 3, 7, 3, Q("7 in")))
sketch6.addConstraint(Sketcher.Constraint("DistanceX", 15, 3, 20, 3, Q("7 in")))
sketch6.addConstraint(Sketcher.Constraint("DistanceX", 17, 3, 21, 3, Q("7 in")))
sketch6.addConstraint(Sketcher.Constraint("DistanceX", 18, 3, 22, 3, Q("7 in")))
sketch6.addConstraint(Sketcher.Constraint("DistanceX", 0, 3, 2, 3, Q("3.5 in")))
sketch6.addConstraint(Sketcher.Constraint("DistanceX", 1, 3, 3, 3, Q("3.5 in")))
sketch6.addConstraint(Sketcher.Constraint("DistanceX", 6, 3, 16, 3, Q("3.5 in")))
sketch6.addConstraint(Sketcher.Constraint("DistanceX", 15, 3, 18, 3, Q("3.5 in")))
sketch6.addConstraint(Sketcher.Constraint("DistanceX", 17, 3, 19, 3, Q("3.5 in")))
sketch6.addConstraint(Sketcher.Constraint("DistanceX", 0, 3, 1, 3, Q("1.75 in")))
sketch6.addConstraint(Sketcher.Constraint("DistanceX", -1, 1, 0, 3, Q("0.375 in")))
sketch6.addConstraint(Sketcher.Constraint("DistanceY", 0, 3, 8, 3, Q("0.875 in")))
sketch6.addConstraint(Sketcher.Constraint("DistanceY", 0, 3, -1, 1, Q("40.813153 mm")))
sketch6.setExpression("Constraints[67]", "Params.sketch6_diameter")
pad5 = body4.newObject("PartDesign::Pad", "Pad004")
pad5.Profile = sketch6
pad5.setExpression("Length", "Params.pad5_length")
pad5.Reversed = True
doc.recompute()

body5 = doc.addObject("PartDesign::Body", "Body004")
body5.BaseFeature = body4
boolean = body2.newObject("PartDesign::Boolean", "Boolean")
boolean.Type = "Cut"
boolean.addObjects([body5])
doc.recompute()

# Sketch on XY plane
sketch7 = body2.newObject("Sketcher::SketchObject", "Sketch006")
sketch7.AttachmentSupport = (doc.getObject("XY_Plane001"), [""])
sketch7.MapMode = "FlatFace"
sketch7.AttachmentOffset = App.Placement(App.Vector(0, 0, -75.738153), App.Rotation())
sketch7.addGeometry(Part.LineSegment(App.Vector(0, -284.48, 0), App.Vector(0, -246.38, 0)), False)
sketch7.addGeometry(Part.LineSegment(App.Vector(0, -246.38, 0), App.Vector(38.1, -246.38, 0)), False)
sketch7.addGeometry(Part.LineSegment(App.Vector(38.1, -246.38, 0), App.Vector(38.1, -284.48, 0)), False)
sketch7.addGeometry(Part.LineSegment(App.Vector(38.1, -284.48, 0), App.Vector(0, -284.48, 0)), False)
sketch7.addGeometry(Part.LineSegment(App.Vector(596.9, -284.48, 0), App.Vector(596.9, -246.38, 0)), False)
sketch7.addGeometry(Part.LineSegment(App.Vector(596.9, -246.38, 0), App.Vector(635, -246.38, 0)), False)
sketch7.addGeometry(Part.LineSegment(App.Vector(635, -246.38, 0), App.Vector(635, -284.48, 0)), False)
sketch7.addGeometry(Part.LineSegment(App.Vector(635, -284.48, 0), App.Vector(596.9, -284.48, 0)), False)
sketch7.addConstraint(Sketcher.Constraint("Coincident", 0, 2, 1, 1))
sketch7.addConstraint(Sketcher.Constraint("Coincident", 1, 2, 2, 1))
sketch7.addConstraint(Sketcher.Constraint("Coincident", 2, 2, 3, 1))
sketch7.addConstraint(Sketcher.Constraint("Coincident", 3, 2, 0, 1))
sketch7.addConstraint(Sketcher.Constraint("Coincident", 4, 2, 5, 1))
sketch7.addConstraint(Sketcher.Constraint("Coincident", 5, 2, 6, 1))
sketch7.addConstraint(Sketcher.Constraint("Coincident", 6, 2, 7, 1))
sketch7.addConstraint(Sketcher.Constraint("Coincident", 7, 2, 4, 1))
sketch7.addConstraint(Sketcher.Constraint("Vertical", 0))
sketch7.addConstraint(Sketcher.Constraint("Horizontal", 1))
sketch7.addConstraint(Sketcher.Constraint("Vertical", 2))
sketch7.addConstraint(Sketcher.Constraint("Horizontal", 3))
sketch7.addConstraint(Sketcher.Constraint("Vertical", 4))
sketch7.addConstraint(Sketcher.Constraint("Horizontal", 5))
sketch7.addConstraint(Sketcher.Constraint("Vertical", 6))
sketch7.addConstraint(Sketcher.Constraint("Horizontal", 7))
sketch7.addConstraint(Sketcher.Constraint("PointOnObject", 0, 2, -2))
sketch7.addConstraint(Sketcher.Constraint("Horizontal", 1, 2, 4, 2))
sketch7.addConstraint(Sketcher.Constraint("Horizontal", 3, 2, 6, 2))
sketch7.addConstraint(Sketcher.Constraint("Equal", 3, 5))
sketch7.addConstraint(Sketcher.Constraint("Equal", 7, 0))
sketch7.addConstraint(Sketcher.Constraint("DistanceX", 1, 1, 1, 2, Q("1.5 in")))
sketch7.addConstraint(Sketcher.Constraint("DistanceX", -1, 1, 5, 2, Q("25 in")))
sketch7.addConstraint(Sketcher.Constraint("DistanceY", 0, 2, -1, 1, Q("9.7 in")))
sketch7.setExpression("Constraints[21]", "Params.sketch7_width")
pad6 = body2.newObject("PartDesign::Pad", "Pad005")
pad6.Profile = sketch7
pad6.setExpression("Length", "Params.pad6_length")
pad6.Reversed = True
doc.recompute()

boolean2 = body3.newObject("PartDesign::Boolean", "Boolean001")
boolean2.Type = "Cut"
boolean2.addObjects([body4])

# Sketch on XY plane
sketch8 = body3.newObject("Sketcher::SketchObject", "Sketch007")
sketch8.AttachmentSupport = (doc.getObject("XY_Plane002"), [""])
sketch8.MapMode = "FlatFace"
sketch8.AttachmentOffset = App.Placement(App.Vector(0, 0, -75.738153), App.Rotation())
sketch8.addGeometry(Part.LineSegment(App.Vector(0, 246.677522, 0), App.Vector(0, 284.777522, 0)), False)
sketch8.addGeometry(Part.LineSegment(App.Vector(0, 284.777522, 0), App.Vector(38.1, 284.777522, 0)), False)
sketch8.addGeometry(Part.LineSegment(App.Vector(38.1, 284.777522, 0), App.Vector(38.1, 246.677522, 0)), False)
sketch8.addGeometry(Part.LineSegment(App.Vector(38.1, 246.677522, 0), App.Vector(0, 246.677522, 0)), False)
sketch8.addGeometry(Part.LineSegment(App.Vector(596.9, 246.677522, 0), App.Vector(596.9, 284.777522, 0)), False)
sketch8.addGeometry(Part.LineSegment(App.Vector(596.9, 284.777522, 0), App.Vector(635, 284.777522, 0)), False)
sketch8.addGeometry(Part.LineSegment(App.Vector(635, 284.777522, 0), App.Vector(635, 246.677522, 0)), False)
sketch8.addGeometry(Part.LineSegment(App.Vector(635, 246.677522, 0), App.Vector(596.9, 246.677522, 0)), False)
sketch8.addConstraint(Sketcher.Constraint("Coincident", 0, 2, 1, 1))
sketch8.addConstraint(Sketcher.Constraint("Coincident", 1, 2, 2, 1))
sketch8.addConstraint(Sketcher.Constraint("Coincident", 2, 2, 3, 1))
sketch8.addConstraint(Sketcher.Constraint("Coincident", 3, 2, 0, 1))
sketch8.addConstraint(Sketcher.Constraint("Coincident", 4, 2, 5, 1))
sketch8.addConstraint(Sketcher.Constraint("Coincident", 5, 2, 6, 1))
sketch8.addConstraint(Sketcher.Constraint("Coincident", 6, 2, 7, 1))
sketch8.addConstraint(Sketcher.Constraint("Coincident", 7, 2, 4, 1))
sketch8.addConstraint(Sketcher.Constraint("Vertical", 0))
sketch8.addConstraint(Sketcher.Constraint("Horizontal", 1))
sketch8.addConstraint(Sketcher.Constraint("Vertical", 2))
sketch8.addConstraint(Sketcher.Constraint("Horizontal", 3))
sketch8.addConstraint(Sketcher.Constraint("Vertical", 4))
sketch8.addConstraint(Sketcher.Constraint("Horizontal", 5))
sketch8.addConstraint(Sketcher.Constraint("Vertical", 6))
sketch8.addConstraint(Sketcher.Constraint("Horizontal", 7))
sketch8.addConstraint(Sketcher.Constraint("PointOnObject", 0, 2, -2))
sketch8.addConstraint(Sketcher.Constraint("Horizontal", 1, 2, 4, 2))
sketch8.addConstraint(Sketcher.Constraint("Horizontal", 3, 2, 6, 2))
sketch8.addConstraint(Sketcher.Constraint("Equal", 3, 5))
sketch8.addConstraint(Sketcher.Constraint("Equal", 7, 0))
sketch8.addConstraint(Sketcher.Constraint("DistanceX", 1, 1, 1, 2, Q("1.5 in")))
sketch8.addConstraint(Sketcher.Constraint("DistanceX", -1, 1, 5, 2, Q("25 in")))
sketch8.addConstraint(Sketcher.Constraint("DistanceY", -1, 1, 0, 2, Q("284.777522 mm")))
sketch8.setExpression("Constraints[21]", "Params.sketch8_width")
pad7 = body3.newObject("PartDesign::Pad", "Pad006")
pad7.Profile = sketch8
pad7.setExpression("Length", "Params.pad7_length")
pad7.Reversed = True

doc.recompute()
